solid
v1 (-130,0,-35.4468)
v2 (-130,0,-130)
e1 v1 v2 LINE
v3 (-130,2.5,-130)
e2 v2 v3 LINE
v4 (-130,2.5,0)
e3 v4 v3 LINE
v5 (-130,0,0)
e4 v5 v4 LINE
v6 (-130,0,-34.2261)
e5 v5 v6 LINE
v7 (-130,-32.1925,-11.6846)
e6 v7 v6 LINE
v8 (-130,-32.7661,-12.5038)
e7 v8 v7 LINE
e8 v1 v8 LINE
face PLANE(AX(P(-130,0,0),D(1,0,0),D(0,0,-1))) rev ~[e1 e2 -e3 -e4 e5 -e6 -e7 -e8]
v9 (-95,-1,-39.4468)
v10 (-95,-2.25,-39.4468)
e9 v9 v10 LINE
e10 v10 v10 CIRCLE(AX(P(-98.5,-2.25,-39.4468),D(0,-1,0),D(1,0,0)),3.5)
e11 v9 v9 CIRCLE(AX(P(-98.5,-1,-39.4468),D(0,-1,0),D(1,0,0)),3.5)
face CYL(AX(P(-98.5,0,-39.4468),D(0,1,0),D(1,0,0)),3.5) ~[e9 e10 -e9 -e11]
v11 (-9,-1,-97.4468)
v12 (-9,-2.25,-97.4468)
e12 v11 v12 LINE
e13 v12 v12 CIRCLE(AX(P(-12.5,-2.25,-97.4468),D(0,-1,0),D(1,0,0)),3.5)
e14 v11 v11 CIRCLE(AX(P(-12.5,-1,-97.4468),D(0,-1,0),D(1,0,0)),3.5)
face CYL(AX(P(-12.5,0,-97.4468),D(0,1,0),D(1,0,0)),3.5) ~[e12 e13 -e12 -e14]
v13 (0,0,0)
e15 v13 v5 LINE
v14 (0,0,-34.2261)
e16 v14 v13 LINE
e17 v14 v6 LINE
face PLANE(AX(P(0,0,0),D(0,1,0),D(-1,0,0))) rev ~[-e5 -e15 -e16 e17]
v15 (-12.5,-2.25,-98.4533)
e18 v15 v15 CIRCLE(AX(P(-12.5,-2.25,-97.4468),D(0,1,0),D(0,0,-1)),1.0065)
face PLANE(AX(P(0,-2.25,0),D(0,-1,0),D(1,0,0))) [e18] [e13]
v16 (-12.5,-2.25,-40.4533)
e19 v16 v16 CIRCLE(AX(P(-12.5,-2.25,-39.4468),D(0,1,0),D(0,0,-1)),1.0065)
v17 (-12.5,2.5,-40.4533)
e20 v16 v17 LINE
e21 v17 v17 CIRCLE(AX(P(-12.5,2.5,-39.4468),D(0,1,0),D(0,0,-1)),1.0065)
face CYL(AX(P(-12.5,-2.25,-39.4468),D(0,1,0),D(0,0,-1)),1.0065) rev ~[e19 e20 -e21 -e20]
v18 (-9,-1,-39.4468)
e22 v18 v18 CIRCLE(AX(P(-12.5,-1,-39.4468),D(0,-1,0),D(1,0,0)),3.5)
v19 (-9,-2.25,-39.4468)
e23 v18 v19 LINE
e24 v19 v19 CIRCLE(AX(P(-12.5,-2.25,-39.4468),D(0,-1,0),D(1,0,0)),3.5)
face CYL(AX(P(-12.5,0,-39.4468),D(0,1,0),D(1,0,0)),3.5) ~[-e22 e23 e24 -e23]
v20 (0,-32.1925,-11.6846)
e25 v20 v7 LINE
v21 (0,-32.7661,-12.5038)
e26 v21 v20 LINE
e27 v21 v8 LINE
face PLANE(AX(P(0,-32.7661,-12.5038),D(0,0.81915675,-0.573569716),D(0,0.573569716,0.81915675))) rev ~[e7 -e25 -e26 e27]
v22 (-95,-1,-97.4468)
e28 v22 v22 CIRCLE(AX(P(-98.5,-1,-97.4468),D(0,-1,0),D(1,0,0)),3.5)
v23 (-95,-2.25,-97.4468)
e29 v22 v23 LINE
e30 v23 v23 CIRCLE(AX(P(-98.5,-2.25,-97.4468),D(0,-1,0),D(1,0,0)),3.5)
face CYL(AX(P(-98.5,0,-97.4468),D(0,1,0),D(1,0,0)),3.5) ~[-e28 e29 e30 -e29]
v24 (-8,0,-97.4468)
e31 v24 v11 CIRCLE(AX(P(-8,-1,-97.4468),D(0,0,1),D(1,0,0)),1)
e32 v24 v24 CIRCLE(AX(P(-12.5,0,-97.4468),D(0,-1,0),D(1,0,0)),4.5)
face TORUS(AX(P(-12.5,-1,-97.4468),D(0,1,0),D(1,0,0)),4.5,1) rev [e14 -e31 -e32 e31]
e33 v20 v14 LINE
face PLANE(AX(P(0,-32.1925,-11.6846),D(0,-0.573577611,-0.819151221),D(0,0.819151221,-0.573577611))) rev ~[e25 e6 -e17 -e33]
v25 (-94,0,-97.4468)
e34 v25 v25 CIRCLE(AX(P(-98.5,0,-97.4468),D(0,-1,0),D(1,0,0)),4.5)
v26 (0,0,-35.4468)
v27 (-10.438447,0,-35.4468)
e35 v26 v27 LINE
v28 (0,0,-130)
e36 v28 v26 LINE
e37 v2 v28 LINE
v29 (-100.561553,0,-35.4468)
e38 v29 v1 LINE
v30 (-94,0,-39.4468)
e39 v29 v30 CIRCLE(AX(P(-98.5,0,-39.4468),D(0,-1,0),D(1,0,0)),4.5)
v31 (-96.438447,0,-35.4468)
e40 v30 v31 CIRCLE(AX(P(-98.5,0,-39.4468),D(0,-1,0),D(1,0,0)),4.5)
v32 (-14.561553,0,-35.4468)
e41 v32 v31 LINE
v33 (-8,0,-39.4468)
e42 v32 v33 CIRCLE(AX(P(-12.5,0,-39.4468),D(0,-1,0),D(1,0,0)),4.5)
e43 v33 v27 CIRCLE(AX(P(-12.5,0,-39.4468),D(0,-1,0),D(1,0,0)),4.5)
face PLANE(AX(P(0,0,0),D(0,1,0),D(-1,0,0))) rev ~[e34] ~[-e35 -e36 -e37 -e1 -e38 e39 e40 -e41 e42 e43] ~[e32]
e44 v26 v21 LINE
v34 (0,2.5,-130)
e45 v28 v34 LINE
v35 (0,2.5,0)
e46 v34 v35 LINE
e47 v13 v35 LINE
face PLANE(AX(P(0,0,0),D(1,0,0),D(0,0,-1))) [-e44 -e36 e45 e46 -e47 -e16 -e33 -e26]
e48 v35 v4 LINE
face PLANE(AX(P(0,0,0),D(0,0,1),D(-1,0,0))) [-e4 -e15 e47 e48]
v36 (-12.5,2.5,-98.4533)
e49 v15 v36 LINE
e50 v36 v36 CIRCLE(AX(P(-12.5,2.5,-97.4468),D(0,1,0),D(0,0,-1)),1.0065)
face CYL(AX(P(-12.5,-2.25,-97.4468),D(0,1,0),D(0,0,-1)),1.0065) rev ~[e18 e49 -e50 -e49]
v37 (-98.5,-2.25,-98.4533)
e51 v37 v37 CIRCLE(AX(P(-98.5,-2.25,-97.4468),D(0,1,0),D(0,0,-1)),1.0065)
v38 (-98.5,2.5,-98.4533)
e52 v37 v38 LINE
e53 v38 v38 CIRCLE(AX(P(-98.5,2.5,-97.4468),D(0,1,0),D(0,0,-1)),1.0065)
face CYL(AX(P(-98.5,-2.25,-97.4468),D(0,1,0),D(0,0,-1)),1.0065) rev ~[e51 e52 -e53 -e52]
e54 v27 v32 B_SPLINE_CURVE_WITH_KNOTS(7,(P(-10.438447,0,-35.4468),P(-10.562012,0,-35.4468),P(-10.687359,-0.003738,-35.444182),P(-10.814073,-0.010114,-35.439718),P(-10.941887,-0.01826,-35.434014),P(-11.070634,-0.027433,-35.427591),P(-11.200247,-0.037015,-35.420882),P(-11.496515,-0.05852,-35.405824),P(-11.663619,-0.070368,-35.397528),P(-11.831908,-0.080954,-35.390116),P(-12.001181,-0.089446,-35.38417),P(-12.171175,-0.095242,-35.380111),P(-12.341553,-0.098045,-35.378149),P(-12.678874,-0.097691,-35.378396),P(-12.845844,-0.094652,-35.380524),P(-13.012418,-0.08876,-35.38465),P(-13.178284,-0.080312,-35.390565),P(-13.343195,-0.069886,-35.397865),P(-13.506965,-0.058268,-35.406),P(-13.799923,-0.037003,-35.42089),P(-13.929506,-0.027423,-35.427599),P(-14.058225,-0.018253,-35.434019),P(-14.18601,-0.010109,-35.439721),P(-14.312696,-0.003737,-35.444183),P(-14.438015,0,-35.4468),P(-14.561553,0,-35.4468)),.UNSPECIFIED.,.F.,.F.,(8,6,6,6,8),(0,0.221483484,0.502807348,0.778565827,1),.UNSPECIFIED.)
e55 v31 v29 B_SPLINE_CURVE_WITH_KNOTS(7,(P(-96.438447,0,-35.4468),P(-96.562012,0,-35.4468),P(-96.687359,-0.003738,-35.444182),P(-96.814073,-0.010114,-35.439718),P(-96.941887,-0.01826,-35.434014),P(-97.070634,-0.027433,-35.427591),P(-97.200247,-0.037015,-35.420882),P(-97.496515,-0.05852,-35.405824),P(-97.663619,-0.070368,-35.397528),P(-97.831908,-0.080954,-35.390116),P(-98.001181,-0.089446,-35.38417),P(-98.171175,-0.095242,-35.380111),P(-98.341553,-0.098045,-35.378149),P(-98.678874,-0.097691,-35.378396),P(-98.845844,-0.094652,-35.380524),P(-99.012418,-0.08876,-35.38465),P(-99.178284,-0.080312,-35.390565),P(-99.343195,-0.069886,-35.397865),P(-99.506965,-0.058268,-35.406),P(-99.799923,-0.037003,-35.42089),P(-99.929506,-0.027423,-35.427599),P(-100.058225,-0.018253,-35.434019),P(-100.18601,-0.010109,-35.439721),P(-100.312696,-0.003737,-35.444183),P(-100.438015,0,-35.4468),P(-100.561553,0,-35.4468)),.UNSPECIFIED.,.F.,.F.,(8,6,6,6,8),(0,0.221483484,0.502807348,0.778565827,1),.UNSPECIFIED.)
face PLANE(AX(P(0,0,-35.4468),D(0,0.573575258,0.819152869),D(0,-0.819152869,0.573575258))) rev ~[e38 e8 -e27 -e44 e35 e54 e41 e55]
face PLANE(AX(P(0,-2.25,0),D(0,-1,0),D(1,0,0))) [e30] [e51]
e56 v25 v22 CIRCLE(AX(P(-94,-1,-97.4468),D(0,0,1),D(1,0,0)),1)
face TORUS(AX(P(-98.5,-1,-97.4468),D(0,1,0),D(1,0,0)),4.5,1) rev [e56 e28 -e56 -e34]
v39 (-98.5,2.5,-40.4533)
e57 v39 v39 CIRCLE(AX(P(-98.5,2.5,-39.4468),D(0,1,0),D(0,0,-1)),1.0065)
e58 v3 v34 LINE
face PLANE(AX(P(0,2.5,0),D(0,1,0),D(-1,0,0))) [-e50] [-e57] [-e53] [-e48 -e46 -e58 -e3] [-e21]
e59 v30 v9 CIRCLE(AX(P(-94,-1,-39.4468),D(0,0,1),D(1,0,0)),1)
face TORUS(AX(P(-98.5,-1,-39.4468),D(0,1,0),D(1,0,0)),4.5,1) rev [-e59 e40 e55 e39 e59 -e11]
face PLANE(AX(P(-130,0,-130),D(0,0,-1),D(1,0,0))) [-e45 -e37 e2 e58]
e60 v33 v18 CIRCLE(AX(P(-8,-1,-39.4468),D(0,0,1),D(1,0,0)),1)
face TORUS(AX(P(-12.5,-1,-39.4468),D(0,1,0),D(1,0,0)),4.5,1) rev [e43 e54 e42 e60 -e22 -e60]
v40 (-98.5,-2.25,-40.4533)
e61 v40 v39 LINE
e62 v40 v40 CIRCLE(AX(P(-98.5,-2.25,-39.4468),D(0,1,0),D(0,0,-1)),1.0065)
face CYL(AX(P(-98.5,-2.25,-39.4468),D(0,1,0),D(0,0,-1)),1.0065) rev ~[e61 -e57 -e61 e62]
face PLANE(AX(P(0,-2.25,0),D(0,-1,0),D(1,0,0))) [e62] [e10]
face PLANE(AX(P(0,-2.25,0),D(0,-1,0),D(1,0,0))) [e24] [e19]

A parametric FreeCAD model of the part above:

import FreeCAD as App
import Part
import Sketcher
Q = App.Units.Quantity


def edges_at(feature, points):
    """Names of the edges that pass closest to the given points."""
    edges = feature.Shape.Edges
    near = lambda p: min(range(len(edges)), key=lambda i: edges[i].distToShape(Part.Vertex(*p))[0])
    return sorted({f"Edge{near(p) + 1}" for p in points})

doc = App.newDocument("Part")
body = doc.addObject("PartDesign::Body", "Body")

sketch1 = doc.addObject("Sketcher::SketchObject", "Sketch")
body.addObject(sketch1)
sketch1.AttachmentSupport = (doc.XZ_Plane, [""])
sketch1.MapMode = "FlatFace"
sketch1.addGeometry([
    Part.LineSegment(App.Vector(-130, 0, 0), App.Vector(0, 0, 0)),
    Part.LineSegment(App.Vector(0, 0, 0), App.Vector(0, -130, 0)),
    Part.LineSegment(App.Vector(0, -130, 0), App.Vector(-130, -130, 0)),
    Part.LineSegment(App.Vector(-130, -130, 0), App.Vector(-130, 0, 0)),
], False)
sketch1.addConstraint([
    Sketcher.Constraint("Coincident", 0, 2, 1, 1),
    Sketcher.Constraint("Coincident", 1, 2, 2, 1),
    Sketcher.Constraint("Coincident", 2, 2, 3, 1),
    Sketcher.Constraint("Coincident", 3, 2, 0, 1),
    Sketcher.Constraint("Horizontal", 0),
    Sketcher.Constraint("Vertical", 1),
    Sketcher.Constraint("Horizontal", 2),
    Sketcher.Constraint("Vertical", 3),
    Sketcher.Constraint("Coincident", 0, 2, -1, 1),
    Sketcher.Constraint("Equal", 2, 1),
    Sketcher.Constraint("DistanceX", 0, 1, 0, 2, Q("130 mm")),
])
pad1 = doc.addObject("PartDesign::Pad", "Pad")
body.addObject(pad1)
pad1.Profile = sketch1
pad1.Length = 2.5
pad1.Reversed = True

sketch2 = doc.addObject("Sketcher::SketchObject", "Sketch001")
body.addObject(sketch2)
sketch2.AttachmentSupport = (doc.XZ_Plane, [""])
sketch2.MapMode = "FlatFace"
sketch2.addGeometry([
    Part.Circle(App.Vector(-12.5, -97.4468, 0), App.Vector(0, 0, 1), 3.5),
    Part.Circle(App.Vector(-98.5, -97.4468, 0), App.Vector(0, 0, 1), 3.5),
    Part.Circle(App.Vector(-12.5, -39.4468, 0), App.Vector(0, 0, 1), 3.5),
    Part.Circle(App.Vector(-98.5, -39.4468, 0), App.Vector(0, 0, 1), 3.5),
], False)
sketch2.addConstraint([
    Sketcher.Constraint("Equal", 0, 1),
    Sketcher.Constraint("Equal", 1, 2),
    Sketcher.Constraint("Equal", 2, 3),
    Sketcher.Constraint("Horizontal", 0, 3, 1, 3),
    Sketcher.Constraint("Horizontal", 2, 3, 3, 3),
    Sketcher.Constraint("Vertical", 0, 3, 2, 3),
    Sketcher.Constraint("Vertical", 1, 3, 3, 3),
    Sketcher.Constraint("Diameter", 0, Q("7 mm")),
    Sketcher.Constraint("DistanceX", 1, 3, 0, 3, Q("86 mm")),
    Sketcher.Constraint("DistanceY", 0, 3, 2, 3, Q("58 mm")),
    Sketcher.Constraint("DistanceX", 0, 3, -1, 1, Q("12.5 mm")),
    Sketcher.Constraint("DistanceY", 0, 3, -1, 1, Q("97.4468 mm")),
])
pad2 = doc.addObject("PartDesign::Pad", "Pad001")
body.addObject(pad2)
pad2.Profile = sketch2
pad2.Length = 2.25
doc.recompute()

fillet = doc.addObject("PartDesign::Fillet", "Fillet")
body.addObject(fillet)
fillet.Base = (pad2, edges_at(pad2, [
    (-16, 0, -97.447),
    (-16, 0, -39.447),
    (-102, 0, -39.447),
    (-102, 0, -97.447),
]))
fillet.Radius = 1

sketch3 = doc.addObject("Sketcher::SketchObject", "Sketch002")
body.addObject(sketch3)
sketch3.AttachmentSupport = (doc.XZ_Plane, [""])
sketch3.MapMode = "FlatFace"
sketch3.AttachmentOffset = App.Placement(App.Vector(0, 0, 2.25), App.Rotation())
sketch3.addGeometry([
    Part.Circle(App.Vector(-12.5, -97.4468, 0), App.Vector(0, 0, 1), 1.0065),
    Part.Circle(App.Vector(-12.5, -39.4468, 0), App.Vector(0, 0, 1), 1.0065),
    Part.Circle(App.Vector(-98.5, -39.4468, 0), App.Vector(0, 0, 1), 1.0065),
    Part.Circle(App.Vector(-98.5, -97.4468, 0), App.Vector(0, 0, 1), 1.0065),
], False)
sketch3.addConstraint([
    Sketcher.Constraint("Equal", 0, 1),
    Sketcher.Constraint("Equal", 1, 2),
    Sketcher.Constraint("Equal", 2, 3),
    Sketcher.Constraint("Horizontal", 1, 3, 2, 3),
    Sketcher.Constraint("Horizontal", 0, 3, 3, 3),
    Sketcher.Constraint("Vertical", 0, 3, 1, 3),
    Sketcher.Constraint("Vertical", 2, 3, 3, 3),
    Sketcher.Constraint("Diameter", 0, Q("2.013 mm")),
    Sketcher.Constraint("DistanceY", 0, 3, 1, 3, Q("58 mm")),
    Sketcher.Constraint("DistanceX", 2, 3, 1, 3, Q("86 mm")),
    Sketcher.Constraint("DistanceX", 0, 3, -1, 1, Q("12.5 mm")),
    Sketcher.Constraint("DistanceY", 0, 3, -1, 1, Q("97.4468 mm")),
])
doc.recompute()
hole = doc.addObject("PartDesign::Hole", "Hole")
body.addObject(hole)
hole.Profile = sketch3
hole.ThreadType = "None"
hole.Diameter = 2.013
hole.DepthType = "Dimension"
hole.Depth = 4.75
hole.DrillPoint = "Flat"

sketch4 = doc.addObject("Sketcher::SketchObject", "Sketch003")
body.addObject(sketch4)
sketch4.AttachmentSupport = (doc.YZ_Plane, [""])
sketch4.MapMode = "FlatFace"
sketch4.addGeometry([
    Part.LineSegment(App.Vector(-32.7661, -12.5038, 0), App.Vector(0, -35.4468, 0)),
    Part.LineSegment(App.Vector(0, -35.4468, 0), App.Vector(0, -34.2261, 0)),
    Part.LineSegment(App.Vector(0, -34.2261, 0), App.Vector(-32.1925, -11.6846, 0)),
    Part.LineSegment(App.Vector(-32.1925, -11.6846, 0), App.Vector(-32.7661, -12.5038, 0)),
], False)
sketch4.addConstraint([
    Sketcher.Constraint("Coincident", 0, 2, 1, 1),
    Sketcher.Constraint("Coincident", 1, 2, 2, 1),
    Sketcher.Constraint("Coincident", 2, 2, 3, 1),
    Sketcher.Constraint("Coincident", 3, 2, 0, 1),
    Sketcher.Constraint("Vertical", 1),
    Sketcher.Constraint("PointOnObject", 0, 2, -2),
    Sketcher.Constraint("Parallel", 0, 2),
    Sketcher.Constraint("Perpendicular", 2, 3),
    Sketcher.Constraint("Distance", 0, Q("40 mm")),
    Sketcher.Constraint("Distance", 3, Q("1 mm")),
    Sketcher.Constraint("Angle", 0, Q("-35 deg")),
    Sketcher.Constraint("DistanceY", 1, 2, -1, 1, Q("34.226 mm")),
])
pad3 = doc.addObject("PartDesign::Pad", "Pad002")
body.addObject(pad3)
pad3.Profile = sketch4
pad3.Length = 130
pad3.Reversed = True

doc.recompute()
